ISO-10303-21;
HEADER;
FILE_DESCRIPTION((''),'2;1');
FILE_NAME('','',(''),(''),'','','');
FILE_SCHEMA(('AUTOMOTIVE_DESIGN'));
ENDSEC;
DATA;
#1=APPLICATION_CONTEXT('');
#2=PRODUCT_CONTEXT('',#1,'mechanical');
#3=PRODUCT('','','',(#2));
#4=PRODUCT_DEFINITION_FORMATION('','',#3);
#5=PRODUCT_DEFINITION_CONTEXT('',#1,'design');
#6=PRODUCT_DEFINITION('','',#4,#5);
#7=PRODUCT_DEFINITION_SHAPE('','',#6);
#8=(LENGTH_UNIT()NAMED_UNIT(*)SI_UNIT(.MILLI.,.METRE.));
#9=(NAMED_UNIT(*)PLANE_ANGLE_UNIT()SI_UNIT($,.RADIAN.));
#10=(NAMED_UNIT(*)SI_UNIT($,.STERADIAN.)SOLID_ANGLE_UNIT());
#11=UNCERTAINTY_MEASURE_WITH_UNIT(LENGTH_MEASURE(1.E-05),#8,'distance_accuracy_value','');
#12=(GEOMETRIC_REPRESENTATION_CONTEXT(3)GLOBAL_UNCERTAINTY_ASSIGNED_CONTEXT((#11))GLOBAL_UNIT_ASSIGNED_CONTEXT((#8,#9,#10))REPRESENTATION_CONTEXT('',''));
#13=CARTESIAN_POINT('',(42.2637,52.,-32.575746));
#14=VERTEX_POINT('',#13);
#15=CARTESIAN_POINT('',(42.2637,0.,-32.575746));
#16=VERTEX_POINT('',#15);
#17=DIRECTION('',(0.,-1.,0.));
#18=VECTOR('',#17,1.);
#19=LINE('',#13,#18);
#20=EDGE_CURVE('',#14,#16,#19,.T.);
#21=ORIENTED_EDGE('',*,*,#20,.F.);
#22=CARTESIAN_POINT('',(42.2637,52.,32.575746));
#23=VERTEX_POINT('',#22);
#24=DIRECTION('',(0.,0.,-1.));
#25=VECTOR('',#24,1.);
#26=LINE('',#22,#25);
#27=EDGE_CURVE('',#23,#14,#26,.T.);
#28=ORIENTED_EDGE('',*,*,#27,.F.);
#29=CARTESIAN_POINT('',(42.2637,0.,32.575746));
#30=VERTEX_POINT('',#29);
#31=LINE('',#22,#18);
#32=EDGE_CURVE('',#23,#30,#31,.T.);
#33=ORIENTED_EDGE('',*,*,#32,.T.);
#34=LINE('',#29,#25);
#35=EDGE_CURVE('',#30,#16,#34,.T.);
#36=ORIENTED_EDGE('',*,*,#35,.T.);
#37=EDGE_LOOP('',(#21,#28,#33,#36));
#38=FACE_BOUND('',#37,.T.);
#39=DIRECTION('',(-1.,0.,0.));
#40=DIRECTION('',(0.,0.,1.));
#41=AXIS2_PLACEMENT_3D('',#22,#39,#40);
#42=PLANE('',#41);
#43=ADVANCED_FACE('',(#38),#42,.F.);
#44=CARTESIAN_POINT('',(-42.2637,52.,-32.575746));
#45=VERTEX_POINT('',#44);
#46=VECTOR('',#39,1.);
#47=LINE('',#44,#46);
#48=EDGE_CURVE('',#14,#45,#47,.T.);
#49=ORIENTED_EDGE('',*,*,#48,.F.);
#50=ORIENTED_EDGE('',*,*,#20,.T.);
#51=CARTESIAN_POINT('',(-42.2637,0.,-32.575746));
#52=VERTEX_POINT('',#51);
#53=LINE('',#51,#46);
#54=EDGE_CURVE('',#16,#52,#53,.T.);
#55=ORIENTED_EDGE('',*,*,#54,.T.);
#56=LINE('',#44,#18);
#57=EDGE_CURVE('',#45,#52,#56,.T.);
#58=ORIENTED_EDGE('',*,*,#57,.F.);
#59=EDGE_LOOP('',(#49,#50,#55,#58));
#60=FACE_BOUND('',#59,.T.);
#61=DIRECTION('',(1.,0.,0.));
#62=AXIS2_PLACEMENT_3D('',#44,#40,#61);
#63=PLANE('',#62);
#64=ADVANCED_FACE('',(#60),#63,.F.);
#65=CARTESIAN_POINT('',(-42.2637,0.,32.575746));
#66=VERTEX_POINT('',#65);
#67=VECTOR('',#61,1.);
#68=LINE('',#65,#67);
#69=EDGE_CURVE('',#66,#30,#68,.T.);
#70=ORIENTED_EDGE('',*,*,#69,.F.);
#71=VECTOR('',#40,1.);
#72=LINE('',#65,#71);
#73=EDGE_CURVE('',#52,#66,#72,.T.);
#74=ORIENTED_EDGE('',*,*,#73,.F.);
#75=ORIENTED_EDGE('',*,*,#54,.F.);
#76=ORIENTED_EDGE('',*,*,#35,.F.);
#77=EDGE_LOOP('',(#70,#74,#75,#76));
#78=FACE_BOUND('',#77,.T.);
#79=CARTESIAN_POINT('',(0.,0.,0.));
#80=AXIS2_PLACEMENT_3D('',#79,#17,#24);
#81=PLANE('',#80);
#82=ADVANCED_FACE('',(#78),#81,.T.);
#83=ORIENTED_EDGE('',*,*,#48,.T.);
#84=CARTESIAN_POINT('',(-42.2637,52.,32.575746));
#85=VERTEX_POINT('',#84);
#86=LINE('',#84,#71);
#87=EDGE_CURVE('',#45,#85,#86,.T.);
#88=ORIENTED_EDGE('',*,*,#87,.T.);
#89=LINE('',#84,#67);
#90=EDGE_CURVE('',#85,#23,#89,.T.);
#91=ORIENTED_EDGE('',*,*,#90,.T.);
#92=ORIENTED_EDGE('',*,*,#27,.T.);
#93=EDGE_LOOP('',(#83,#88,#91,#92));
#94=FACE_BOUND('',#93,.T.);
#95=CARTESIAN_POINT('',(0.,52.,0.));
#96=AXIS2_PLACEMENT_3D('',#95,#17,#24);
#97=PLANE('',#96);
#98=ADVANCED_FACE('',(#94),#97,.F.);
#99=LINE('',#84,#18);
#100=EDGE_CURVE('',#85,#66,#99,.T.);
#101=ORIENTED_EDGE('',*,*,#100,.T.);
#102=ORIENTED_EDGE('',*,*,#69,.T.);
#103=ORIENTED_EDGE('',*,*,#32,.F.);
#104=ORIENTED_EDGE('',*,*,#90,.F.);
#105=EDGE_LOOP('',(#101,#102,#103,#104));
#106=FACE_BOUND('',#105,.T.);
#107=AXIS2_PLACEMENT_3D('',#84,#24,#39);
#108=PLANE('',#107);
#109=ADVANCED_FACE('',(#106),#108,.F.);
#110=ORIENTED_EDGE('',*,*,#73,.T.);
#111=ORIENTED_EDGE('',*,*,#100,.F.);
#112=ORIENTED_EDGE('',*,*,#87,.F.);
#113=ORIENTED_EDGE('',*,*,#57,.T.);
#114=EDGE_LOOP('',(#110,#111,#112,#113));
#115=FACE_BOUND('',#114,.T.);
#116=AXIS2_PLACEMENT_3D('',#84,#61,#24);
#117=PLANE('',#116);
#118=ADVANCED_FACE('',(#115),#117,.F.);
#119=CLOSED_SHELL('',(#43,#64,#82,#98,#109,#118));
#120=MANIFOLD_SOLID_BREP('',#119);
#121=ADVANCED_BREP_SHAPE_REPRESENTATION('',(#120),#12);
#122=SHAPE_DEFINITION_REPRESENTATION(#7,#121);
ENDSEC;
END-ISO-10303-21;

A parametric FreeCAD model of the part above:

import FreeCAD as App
import Part
import Sketcher

V = App.Vector


def add_polygon(sketch, points):
    """Adds a closed chain of lines whose ends are joined by coincident constraints."""
    first, n = sketch.GeometryCount, len(points)
    for a, b in zip(points, points[1:] + points[:1]):
        sketch.addGeometry(Part.LineSegment(App.Vector(*a, 0), App.Vector(*b, 0)), False)
    for i in range(n):
        sketch.addConstraint(Sketcher.Constraint("Coincident", first + i, 2, first + (i + 1) % n, 1))

doc = App.newDocument("Part")
params = doc.addObject("Spreadsheet::Sheet", "Params")
for row, (alias, value) in enumerate([
    ("pad1_length", "52 mm"),
], start=1):
    params.set(f"A{row}", alias)
    params.set(f"B{row}", "=" + value)
    params.setAlias(f"B{row}", alias)

body = doc.addObject("PartDesign::Body", "Body")

# Sketch on XZ plane
sketch1 = body.newObject("Sketcher::SketchObject", "Sketch")
sketch1.AttachmentSupport = (doc.getObject("XZ_Plane"), [""])
sketch1.MapMode = "FlatFace"
add_polygon(sketch1, [(-42.2637, -32.575746), (-42.2637, 32.575746), (42.2637, 32.575746), (42.2637, -32.575746)])  # lines 0-3
sketch1.addConstraint(Sketcher.Constraint("Vertical", 0))
sketch1.addConstraint(Sketcher.Constraint("Horizontal", 1))
sketch1.addConstraint(Sketcher.Constraint("Vertical", 2))
sketch1.addConstraint(Sketcher.Constraint("Horizontal", 3))
sketch1.addConstraint(Sketcher.Constraint("Symmetric", 0, 2, 2, 2, -1, 1))
sketch1.addConstraint(Sketcher.Constraint("DistanceX", 1, 1, 1, 2, 84.5274))
sketch1.addConstraint(Sketcher.Constraint("DistanceY", 0, 1, 0, 2, 65.151491))
pad1 = body.newObject("PartDesign::Pad", "Pad")
pad1.Profile = sketch1
pad1.setExpression("Length", "Params.pad1_length")
pad1.Reversed = True

doc.recompute()
